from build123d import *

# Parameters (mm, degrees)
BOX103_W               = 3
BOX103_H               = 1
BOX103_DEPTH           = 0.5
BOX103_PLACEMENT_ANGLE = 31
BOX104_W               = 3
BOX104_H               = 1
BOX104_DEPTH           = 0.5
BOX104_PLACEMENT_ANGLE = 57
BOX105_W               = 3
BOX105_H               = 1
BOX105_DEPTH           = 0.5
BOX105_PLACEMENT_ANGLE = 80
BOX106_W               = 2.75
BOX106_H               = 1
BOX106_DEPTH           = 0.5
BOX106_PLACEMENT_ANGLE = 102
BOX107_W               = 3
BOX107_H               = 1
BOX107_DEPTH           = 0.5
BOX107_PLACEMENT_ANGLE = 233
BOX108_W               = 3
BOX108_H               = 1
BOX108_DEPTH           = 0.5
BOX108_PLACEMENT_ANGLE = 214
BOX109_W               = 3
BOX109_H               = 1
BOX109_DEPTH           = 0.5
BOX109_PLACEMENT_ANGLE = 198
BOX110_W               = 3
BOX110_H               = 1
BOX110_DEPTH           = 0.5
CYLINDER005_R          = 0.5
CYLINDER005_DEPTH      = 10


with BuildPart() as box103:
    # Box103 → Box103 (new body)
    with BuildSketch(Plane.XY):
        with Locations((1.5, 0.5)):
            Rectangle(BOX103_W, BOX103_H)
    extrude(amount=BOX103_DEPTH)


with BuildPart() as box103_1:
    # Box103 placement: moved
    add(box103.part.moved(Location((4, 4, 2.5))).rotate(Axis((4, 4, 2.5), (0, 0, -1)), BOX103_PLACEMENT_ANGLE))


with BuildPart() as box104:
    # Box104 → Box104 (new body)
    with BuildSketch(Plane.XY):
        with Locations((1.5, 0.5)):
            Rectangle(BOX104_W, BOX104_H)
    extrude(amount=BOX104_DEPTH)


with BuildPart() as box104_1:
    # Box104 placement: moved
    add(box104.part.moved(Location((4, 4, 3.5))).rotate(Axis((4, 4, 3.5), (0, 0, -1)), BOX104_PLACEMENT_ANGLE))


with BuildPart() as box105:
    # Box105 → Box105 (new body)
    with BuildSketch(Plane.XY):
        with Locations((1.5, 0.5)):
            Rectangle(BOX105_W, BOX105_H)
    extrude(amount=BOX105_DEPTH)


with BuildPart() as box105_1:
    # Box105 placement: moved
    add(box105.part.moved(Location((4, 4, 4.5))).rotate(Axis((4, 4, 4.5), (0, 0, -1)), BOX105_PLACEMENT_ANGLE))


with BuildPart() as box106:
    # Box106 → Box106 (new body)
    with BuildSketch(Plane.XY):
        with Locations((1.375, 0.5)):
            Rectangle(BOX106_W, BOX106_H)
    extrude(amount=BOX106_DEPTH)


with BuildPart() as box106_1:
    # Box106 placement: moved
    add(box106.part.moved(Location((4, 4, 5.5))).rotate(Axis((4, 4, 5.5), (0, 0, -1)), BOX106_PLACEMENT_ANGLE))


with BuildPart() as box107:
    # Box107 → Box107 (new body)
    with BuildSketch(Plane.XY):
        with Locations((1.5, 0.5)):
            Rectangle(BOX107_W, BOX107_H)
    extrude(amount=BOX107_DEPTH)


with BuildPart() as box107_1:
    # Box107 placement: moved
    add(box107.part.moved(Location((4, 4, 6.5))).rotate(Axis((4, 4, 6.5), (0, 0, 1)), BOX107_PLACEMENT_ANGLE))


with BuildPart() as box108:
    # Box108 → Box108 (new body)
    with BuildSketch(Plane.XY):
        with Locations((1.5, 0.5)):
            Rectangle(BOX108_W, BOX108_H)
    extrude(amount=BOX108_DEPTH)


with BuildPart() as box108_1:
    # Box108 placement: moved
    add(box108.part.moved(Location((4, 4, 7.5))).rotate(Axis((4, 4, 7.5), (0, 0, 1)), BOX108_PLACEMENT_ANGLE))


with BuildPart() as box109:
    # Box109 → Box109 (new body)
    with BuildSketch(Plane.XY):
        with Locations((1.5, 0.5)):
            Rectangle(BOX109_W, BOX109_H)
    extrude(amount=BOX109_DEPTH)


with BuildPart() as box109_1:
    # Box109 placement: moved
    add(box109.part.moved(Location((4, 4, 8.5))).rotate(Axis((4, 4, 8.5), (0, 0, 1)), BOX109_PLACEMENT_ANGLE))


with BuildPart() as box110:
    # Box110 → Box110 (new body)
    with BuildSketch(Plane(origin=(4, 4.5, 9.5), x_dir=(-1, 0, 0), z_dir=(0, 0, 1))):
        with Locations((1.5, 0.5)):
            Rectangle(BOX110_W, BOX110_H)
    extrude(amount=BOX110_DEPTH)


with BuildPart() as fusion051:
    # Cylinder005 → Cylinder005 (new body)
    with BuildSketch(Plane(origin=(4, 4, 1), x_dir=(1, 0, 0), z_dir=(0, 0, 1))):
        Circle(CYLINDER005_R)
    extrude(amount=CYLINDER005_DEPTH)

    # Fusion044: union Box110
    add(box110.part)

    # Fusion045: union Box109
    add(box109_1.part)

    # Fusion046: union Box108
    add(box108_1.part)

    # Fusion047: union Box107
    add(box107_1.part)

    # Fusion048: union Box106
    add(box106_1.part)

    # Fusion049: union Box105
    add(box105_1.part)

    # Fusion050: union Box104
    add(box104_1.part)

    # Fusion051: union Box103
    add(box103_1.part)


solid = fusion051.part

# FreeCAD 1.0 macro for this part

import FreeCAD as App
import Part
import Sketcher

V = App.Vector

doc = App.newDocument("Part")
body = doc.addObject("PartDesign::Body", "Body")

sketch1 = doc.addObject("Sketcher::SketchObject", "Sketch")
body.addObject(sketch1)
sketch1.AttachmentSupport = (doc.XY_Plane, [""])
sketch1.MapMode = "FlatFace"
sketch1.addGeometry([
    Part.LineSegment(V(0, 1, 0), V(0, 0, 0)),
    Part.LineSegment(V(0, 0, 0), V(3, 0, 0)),
    Part.LineSegment(V(3, 0, 0), V(3, 1, 0)),
    Part.LineSegment(V(3, 1, 0), V(0, 1, 0)),
], False)
sketch1.addConstraint([
    Sketcher.Constraint("Coincident", 0, 2, 1, 1),
    Sketcher.Constraint("Coincident", 1, 2, 2, 1),
    Sketcher.Constraint("Coincident", 2, 2, 3, 1),
    Sketcher.Constraint("Coincident", 3, 2, 0, 1),
    Sketcher.Constraint("Vertical", 0),
    Sketcher.Constraint("Horizontal", 1),
    Sketcher.Constraint("Vertical", 2),
    Sketcher.Constraint("Horizontal", 3),
    Sketcher.Constraint("Coincident", 0, 2, -1, 1),
    Sketcher.Constraint("DistanceX", 1, 1, 1, 2, 3.0),
    Sketcher.Constraint("DistanceY", 0, 2, 0, 1, 1.0),
])
pad1 = doc.addObject("PartDesign::Pad", "Pad")
body.addObject(pad1)
pad1.Profile = sketch1
pad1.Length = 0.5
body2 = doc.addObject("PartDesign::Body", "Body001")
doc.recompute()

body.Placement = App.Placement(V(4, 4, 2.5), App.Rotation(V(0, 0, -1), 31))
boolean = doc.addObject("PartDesign::Boolean", "Boolean")
body2.addObject(boolean)
boolean.Type = "Fuse"
boolean.addObjects([body])
body3 = doc.addObject("PartDesign::Body", "Body002")

sketch2 = doc.addObject("Sketcher::SketchObject", "Sketch001")
body3.addObject(sketch2)
sketch2.AttachmentSupport = (doc.getObject("XY_Plane002"), [""])
sketch2.MapMode = "FlatFace"
sketch2.addGeometry([
    Part.LineSegment(V(0, 1, 0), V(0, 0, 0)),
    Part.LineSegment(V(0, 0, 0), V(3, 0, 0)),
    Part.LineSegment(V(3, 0, 0), V(3, 1, 0)),
    Part.LineSegment(V(3, 1, 0), V(0, 1, 0)),
], False)
sketch2.addConstraint([
    Sketcher.Constraint("Coincident", 0, 2, 1, 1),
    Sketcher.Constraint("Coincident", 1, 2, 2, 1),
    Sketcher.Constraint("Coincident", 2, 2, 3, 1),
    Sketcher.Constraint("Coincident", 3, 2, 0, 1),
    Sketcher.Constraint("Vertical", 0),
    Sketcher.Constraint("Horizontal", 1),
    Sketcher.Constraint("Vertical", 2),
    Sketcher.Constraint("Horizontal", 3),
    Sketcher.Constraint("Coincident", 0, 2, -1, 1),
    Sketcher.Constraint("DistanceX", 1, 1, 1, 2, 3.0),
    Sketcher.Constraint("DistanceY", 0, 2, 0, 1, 1.0),
])
pad2 = doc.addObject("PartDesign::Pad", "Pad001")
body3.addObject(pad2)
pad2.Profile = sketch2
pad2.Length = 0.5
body4 = doc.addObject("PartDesign::Body", "Body003")
doc.recompute()

body3.Placement = App.Placement(V(4, 4, 3.5), App.Rotation(V(0, 0, -1), 57))
boolean2 = doc.addObject("PartDesign::Boolean", "Boolean001")
body4.addObject(boolean2)
boolean2.Type = "Fuse"
boolean2.addObjects([body3])
body5 = doc.addObject("PartDesign::Body", "Body004")

sketch3 = doc.addObject("Sketcher::SketchObject", "Sketch002")
body5.addObject(sketch3)
sketch3.AttachmentSupport = (doc.getObject("XY_Plane004"), [""])
sketch3.MapMode = "FlatFace"
sketch3.addGeometry([
    Part.LineSegment(V(0, 1, 0), V(0, 0, 0)),
    Part.LineSegment(V(0, 0, 0), V(3, 0, 0)),
    Part.LineSegment(V(3, 0, 0), V(3, 1, 0)),
    Part.LineSegment(V(3, 1, 0), V(0, 1, 0)),
], False)
sketch3.addConstraint([
    Sketcher.Constraint("Coincident", 0, 2, 1, 1),
    Sketcher.Constraint("Coincident", 1, 2, 2, 1),
    Sketcher.Constraint("Coincident", 2, 2, 3, 1),
    Sketcher.Constraint("Coincident", 3, 2, 0, 1),
    Sketcher.Constraint("Vertical", 0),
    Sketcher.Constraint("Horizontal", 1),
    Sketcher.Constraint("Vertical", 2),
    Sketcher.Constraint("Horizontal", 3),
    Sketcher.Constraint("Coincident", 0, 2, -1, 1),
    Sketcher.Constraint("DistanceX", 1, 1, 1, 2, 3.0),
    Sketcher.Constraint("DistanceY", 0, 2, 0, 1, 1.0),
])
pad3 = doc.addObject("PartDesign::Pad", "Pad002")
body5.addObject(pad3)
pad3.Profile = sketch3
pad3.Length = 0.5
body6 = doc.addObject("PartDesign::Body", "Body005")
doc.recompute()

body5.Placement = App.Placement(V(4, 4, 4.5), App.Rotation(V(0, 0, -1), 80))
boolean3 = doc.addObject("PartDesign::Boolean", "Boolean002")
body6.addObject(boolean3)
boolean3.Type = "Fuse"
boolean3.addObjects([body5])
body7 = doc.addObject("PartDesign::Body", "Body006")

sketch4 = doc.addObject("Sketcher::SketchObject", "Sketch003")
body7.addObject(sketch4)
sketch4.AttachmentSupport = (doc.getObject("XY_Plane006"), [""])
sketch4.MapMode = "FlatFace"
sketch4.addGeometry([
    Part.LineSegment(V(0, 1, 0), V(0, 0, 0)),
    Part.LineSegment(V(0, 0, 0), V(2.75, 0, 0)),
    Part.LineSegment(V(2.75, 0, 0), V(2.75, 1, 0)),
    Part.LineSegment(V(2.75, 1, 0), V(0, 1, 0)),
], False)
sketch4.addConstraint([
    Sketcher.Constraint("Coincident", 0, 2, 1, 1),
    Sketcher.Constraint("Coincident", 1, 2, 2, 1),
    Sketcher.Constraint("Coincident", 2, 2, 3, 1),
    Sketcher.Constraint("Coincident", 3, 2, 0, 1),
    Sketcher.Constraint("Vertical", 0),
    Sketcher.Constraint("Horizontal", 1),
    Sketcher.Constraint("Vertical", 2),
    Sketcher.Constraint("Horizontal", 3),
    Sketcher.Constraint("Coincident", 0, 2, -1, 1),
    Sketcher.Constraint("DistanceY", 0, 2, 0, 1, 1.0),
    Sketcher.Constraint("DistanceX", 1, 1, 1, 2, 2.75),
])
pad4 = doc.addObject("PartDesign::Pad", "Pad003")
body7.addObject(pad4)
pad4.Profile = sketch4
pad4.Length = 0.5
body8 = doc.addObject("PartDesign::Body", "Body007")
doc.recompute()

body7.Placement = App.Placement(V(4, 4, 5.5), App.Rotation(V(0, 0, -1), 102))
boolean4 = doc.addObject("PartDesign::Boolean", "Boolean003")
body8.addObject(boolean4)
boolean4.Type = "Fuse"
boolean4.addObjects([body7])
body9 = doc.addObject("PartDesign::Body", "Body008")

sketch5 = doc.addObject("Sketcher::SketchObject", "Sketch004")
body9.addObject(sketch5)
sketch5.AttachmentSupport = (doc.getObject("XY_Plane008"), [""])
sketch5.MapMode = "FlatFace"
sketch5.addGeometry([
    Part.LineSegment(V(0, 1, 0), V(0, 0, 0)),
    Part.LineSegment(V(0, 0, 0), V(3, 0, 0)),
    Part.LineSegment(V(3, 0, 0), V(3, 1, 0)),
    Part.LineSegment(V(3, 1, 0), V(0, 1, 0)),
], False)
sketch5.addConstraint([
    Sketcher.Constraint("Coincident", 0, 2, 1, 1),
    Sketcher.Constraint("Coincident", 1, 2, 2, 1),
    Sketcher.Constraint("Coincident", 2, 2, 3, 1),
    Sketcher.Constraint("Coincident", 3, 2, 0, 1),
    Sketcher.Constraint("Vertical", 0),
    Sketcher.Constraint("Horizontal", 1),
    Sketcher.Constraint("Vertical", 2),
    Sketcher.Constraint("Horizontal", 3),
    Sketcher.Constraint("Coincident", 0, 2, -1, 1),
    Sketcher.Constraint("DistanceX", 1, 1, 1, 2, 3.0),
    Sketcher.Constraint("DistanceY", 0, 2, 0, 1, 1.0),
])
pad5 = doc.addObject("PartDesign::Pad", "Pad004")
body9.addObject(pad5)
pad5.Profile = sketch5
pad5.Length = 0.5
body10 = doc.addObject("PartDesign::Body", "Body009")
doc.recompute()

body9.Placement = App.Placement(V(4, 4, 6.5), App.Rotation(V(0, 0, 1), 233))
boolean5 = doc.addObject("PartDesign::Boolean", "Boolean004")
body10.addObject(boolean5)
boolean5.Type = "Fuse"
boolean5.addObjects([body9])
body11 = doc.addObject("PartDesign::Body", "Body010")

sketch6 = doc.addObject("Sketcher::SketchObject", "Sketch005")
body11.addObject(sketch6)
sketch6.AttachmentSupport = (doc.getObject("XY_Plane010"), [""])
sketch6.MapMode = "FlatFace"
sketch6.addGeometry([
    Part.LineSegment(V(0, 1, 0), V(0, 0, 0)),
    Part.LineSegment(V(0, 0, 0), V(3, 0, 0)),
    Part.LineSegment(V(3, 0, 0), V(3, 1, 0)),
    Part.LineSegment(V(3, 1, 0), V(0, 1, 0)),
], False)
sketch6.addConstraint([
    Sketcher.Constraint("Coincident", 0, 2, 1, 1),
    Sketcher.Constraint("Coincident", 1, 2, 2, 1),
    Sketcher.Constraint("Coincident", 2, 2, 3, 1),
    Sketcher.Constraint("Coincident", 3, 2, 0, 1),
    Sketcher.Constraint("Vertical", 0),
    Sketcher.Constraint("Horizontal", 1),
    Sketcher.Constraint("Vertical", 2),
    Sketcher.Constraint("Horizontal", 3),
    Sketcher.Constraint("Coincident", 0, 2, -1, 1),
    Sketcher.Constraint("DistanceX", 1, 1, 1, 2, 3.0),
    Sketcher.Constraint("DistanceY", 0, 2, 0, 1, 1.0),
])
pad6 = doc.addObject("PartDesign::Pad", "Pad005")
body11.addObject(pad6)
pad6.Profile = sketch6
pad6.Length = 0.5
body12 = doc.addObject("PartDesign::Body", "Body011")
doc.recompute()

body11.Placement = App.Placement(V(4, 4, 7.5), App.Rotation(V(0, 0, 1), 214))
boolean6 = doc.addObject("PartDesign::Boolean", "Boolean005")
body12.addObject(boolean6)
boolean6.Type = "Fuse"
boolean6.addObjects([body11])
body13 = doc.addObject("PartDesign::Body", "Body012")

sketch7 = doc.addObject("Sketcher::SketchObject", "Sketch006")
body13.addObject(sketch7)
sketch7.AttachmentSupport = (doc.getObject("XY_Plane012"), [""])
sketch7.MapMode = "FlatFace"
sketch7.addGeometry([
    Part.LineSegment(V(0, 1, 0), V(0, 0, 0)),
    Part.LineSegment(V(0, 0, 0), V(3, 0, 0)),
    Part.LineSegment(V(3, 0, 0), V(3, 1, 0)),
    Part.LineSegment(V(3, 1, 0), V(0, 1, 0)),
], False)
sketch7.addConstraint([
    Sketcher.Constraint("Coincident", 0, 2, 1, 1),
    Sketcher.Constraint("Coincident", 1, 2, 2, 1),
    Sketcher.Constraint("Coincident", 2, 2, 3, 1),
    Sketcher.Constraint("Coincident", 3, 2, 0, 1),
    Sketcher.Constraint("Vertical", 0),
    Sketcher.Constraint("Horizontal", 1),
    Sketcher.Constraint("Vertical", 2),
    Sketcher.Constraint("Horizontal", 3),
    Sketcher.Constraint("Coincident", 0, 2, -1, 1),
    Sketcher.Constraint("DistanceX", 1, 1, 1, 2, 3.0),
    Sketcher.Constraint("DistanceY", 0, 2, 0, 1, 1.0),
])
pad7 = doc.addObject("PartDesign::Pad", "Pad006")
body13.addObject(pad7)
pad7.Profile = sketch7
pad7.Length = 0.5
body14 = doc.addObject("PartDesign::Body", "Body013")
doc.recompute()

body13.Placement = App.Placement(V(4, 4, 8.5), App.Rotation(V(0, 0, 1), 198))
boolean7 = doc.addObject("PartDesign::Boolean", "Boolean006")
body14.addObject(boolean7)
boolean7.Type = "Fuse"
boolean7.addObjects([body13])
body15 = doc.addObject("PartDesign::Body", "Body014")

sketch8 = doc.addObject("Sketcher::SketchObject", "Sketch007")
body15.addObject(sketch8)
sketch8.AttachmentSupport = (doc.getObject("XY_Plane014"), [""])
sketch8.MapMode = "FlatFace"
sketch8.AttachmentOffset = App.Placement(V(0, 0, 9.5), App.Rotation())
sketch8.addGeometry([
    Part.LineSegment(V(4, 3.5, 0), V(4, 4.5, 0)),
    Part.LineSegment(V(4, 4.5, 0), V(1, 4.5, 0)),
    Part.LineSegment(V(1, 4.5, 0), V(1, 3.5, 0)),
    Part.LineSegment(V(1, 3.5, 0), V(4, 3.5, 0)),
], False)
sketch8.addConstraint([
    Sketcher.Constraint("Coincident", 0, 2, 1, 1),
    Sketcher.Constraint("Coincident", 1, 2, 2, 1),
    Sketcher.Constraint("Coincident", 2, 2, 3, 1),
    Sketcher.Constraint("Coincident", 3, 2, 0, 1),
    Sketcher.Constraint("Vertical", 0),
    Sketcher.Constraint("Horizontal", 1),
    Sketcher.Constraint("Vertical", 2),
    Sketcher.Constraint("Horizontal", 3),
    Sketcher.Constraint("DistanceX", 1, 2, 1, 1, 3.0),
    Sketcher.Constraint("DistanceY", 0, 1, 0, 2, 1.0),
    Sketcher.Constraint("DistanceX", -1, 1, 0, 2, 4.0),
    Sketcher.Constraint("DistanceY", -1, 1, 0, 2, 4.5),
])
pad8 = doc.addObject("PartDesign::Pad", "Pad007")
body15.addObject(pad8)
pad8.Profile = sketch8
pad8.Length = 0.5
body16 = doc.addObject("PartDesign::Body", "Body015")

sketch9 = doc.addObject("Sketcher::SketchObject", "Sketch008")
body16.addObject(sketch9)
sketch9.AttachmentSupport = (doc.getObject("XY_Plane015"), [""])
sketch9.MapMode = "FlatFace"
sketch9.AttachmentOffset = App.Placement(V(0, 0, 1), App.Rotation())
sketch9.addGeometry(Part.Circle(V(4, 4, 0), V(0, 0, 1), 0.5), False)
sketch9.addConstraint([
    Sketcher.Constraint("Diameter", 0, 1.0),
    Sketcher.Constraint("DistanceX", -1, 1, 0, 3, 4.0),
    Sketcher.Constraint("DistanceY", -1, 1, 0, 3, 4.0),
])
pad9 = doc.addObject("PartDesign::Pad", "Pad008")
body16.addObject(pad9)
pad9.Profile = sketch9
pad9.Length = 10
doc.recompute()

boolean8 = doc.addObject("PartDesign::Boolean", "Boolean007")
body16.addObject(boolean8)
boolean8.Type = "Fuse"
boolean8.addObjects([body15])
doc.recompute()

boolean9 = doc.addObject("PartDesign::Boolean", "Boolean008")
body16.addObject(boolean9)
boolean9.Type = "Fuse"
boolean9.addObjects([body14])
doc.recompute()

boolean10 = doc.addObject("PartDesign::Boolean", "Boolean009")
body16.addObject(boolean10)
boolean10.Type = "Fuse"
boolean10.addObjects([body12])
doc.recompute()

boolean11 = doc.addObject("PartDesign::Boolean", "Boolean010")
body16.addObject(boolean11)
boolean11.Type = "Fuse"
boolean11.addObjects([body10])
doc.recompute()

boolean12 = doc.addObject("PartDesign::Boolean", "Boolean011")
body16.addObject(boolean12)
boolean12.Type = "Fuse"
boolean12.addObjects([body8])
doc.recompute()

boolean13 = doc.addObject("PartDesign::Boolean", "Boolean012")
body16.addObject(boolean13)
boolean13.Type = "Fuse"
boolean13.addObjects([body6])
doc.recompute()

boolean14 = doc.addObject("PartDesign::Boolean", "Boolean013")
body16.addObject(boolean14)
boolean14.Type = "Fuse"
boolean14.addObjects([body4])
doc.recompute()

boolean15 = doc.addObject("PartDesign::Boolean", "Boolean014")
body16.addObject(boolean15)
boolean15.Type = "Fuse"
boolean15.addObjects([body2])

doc.recompute()
